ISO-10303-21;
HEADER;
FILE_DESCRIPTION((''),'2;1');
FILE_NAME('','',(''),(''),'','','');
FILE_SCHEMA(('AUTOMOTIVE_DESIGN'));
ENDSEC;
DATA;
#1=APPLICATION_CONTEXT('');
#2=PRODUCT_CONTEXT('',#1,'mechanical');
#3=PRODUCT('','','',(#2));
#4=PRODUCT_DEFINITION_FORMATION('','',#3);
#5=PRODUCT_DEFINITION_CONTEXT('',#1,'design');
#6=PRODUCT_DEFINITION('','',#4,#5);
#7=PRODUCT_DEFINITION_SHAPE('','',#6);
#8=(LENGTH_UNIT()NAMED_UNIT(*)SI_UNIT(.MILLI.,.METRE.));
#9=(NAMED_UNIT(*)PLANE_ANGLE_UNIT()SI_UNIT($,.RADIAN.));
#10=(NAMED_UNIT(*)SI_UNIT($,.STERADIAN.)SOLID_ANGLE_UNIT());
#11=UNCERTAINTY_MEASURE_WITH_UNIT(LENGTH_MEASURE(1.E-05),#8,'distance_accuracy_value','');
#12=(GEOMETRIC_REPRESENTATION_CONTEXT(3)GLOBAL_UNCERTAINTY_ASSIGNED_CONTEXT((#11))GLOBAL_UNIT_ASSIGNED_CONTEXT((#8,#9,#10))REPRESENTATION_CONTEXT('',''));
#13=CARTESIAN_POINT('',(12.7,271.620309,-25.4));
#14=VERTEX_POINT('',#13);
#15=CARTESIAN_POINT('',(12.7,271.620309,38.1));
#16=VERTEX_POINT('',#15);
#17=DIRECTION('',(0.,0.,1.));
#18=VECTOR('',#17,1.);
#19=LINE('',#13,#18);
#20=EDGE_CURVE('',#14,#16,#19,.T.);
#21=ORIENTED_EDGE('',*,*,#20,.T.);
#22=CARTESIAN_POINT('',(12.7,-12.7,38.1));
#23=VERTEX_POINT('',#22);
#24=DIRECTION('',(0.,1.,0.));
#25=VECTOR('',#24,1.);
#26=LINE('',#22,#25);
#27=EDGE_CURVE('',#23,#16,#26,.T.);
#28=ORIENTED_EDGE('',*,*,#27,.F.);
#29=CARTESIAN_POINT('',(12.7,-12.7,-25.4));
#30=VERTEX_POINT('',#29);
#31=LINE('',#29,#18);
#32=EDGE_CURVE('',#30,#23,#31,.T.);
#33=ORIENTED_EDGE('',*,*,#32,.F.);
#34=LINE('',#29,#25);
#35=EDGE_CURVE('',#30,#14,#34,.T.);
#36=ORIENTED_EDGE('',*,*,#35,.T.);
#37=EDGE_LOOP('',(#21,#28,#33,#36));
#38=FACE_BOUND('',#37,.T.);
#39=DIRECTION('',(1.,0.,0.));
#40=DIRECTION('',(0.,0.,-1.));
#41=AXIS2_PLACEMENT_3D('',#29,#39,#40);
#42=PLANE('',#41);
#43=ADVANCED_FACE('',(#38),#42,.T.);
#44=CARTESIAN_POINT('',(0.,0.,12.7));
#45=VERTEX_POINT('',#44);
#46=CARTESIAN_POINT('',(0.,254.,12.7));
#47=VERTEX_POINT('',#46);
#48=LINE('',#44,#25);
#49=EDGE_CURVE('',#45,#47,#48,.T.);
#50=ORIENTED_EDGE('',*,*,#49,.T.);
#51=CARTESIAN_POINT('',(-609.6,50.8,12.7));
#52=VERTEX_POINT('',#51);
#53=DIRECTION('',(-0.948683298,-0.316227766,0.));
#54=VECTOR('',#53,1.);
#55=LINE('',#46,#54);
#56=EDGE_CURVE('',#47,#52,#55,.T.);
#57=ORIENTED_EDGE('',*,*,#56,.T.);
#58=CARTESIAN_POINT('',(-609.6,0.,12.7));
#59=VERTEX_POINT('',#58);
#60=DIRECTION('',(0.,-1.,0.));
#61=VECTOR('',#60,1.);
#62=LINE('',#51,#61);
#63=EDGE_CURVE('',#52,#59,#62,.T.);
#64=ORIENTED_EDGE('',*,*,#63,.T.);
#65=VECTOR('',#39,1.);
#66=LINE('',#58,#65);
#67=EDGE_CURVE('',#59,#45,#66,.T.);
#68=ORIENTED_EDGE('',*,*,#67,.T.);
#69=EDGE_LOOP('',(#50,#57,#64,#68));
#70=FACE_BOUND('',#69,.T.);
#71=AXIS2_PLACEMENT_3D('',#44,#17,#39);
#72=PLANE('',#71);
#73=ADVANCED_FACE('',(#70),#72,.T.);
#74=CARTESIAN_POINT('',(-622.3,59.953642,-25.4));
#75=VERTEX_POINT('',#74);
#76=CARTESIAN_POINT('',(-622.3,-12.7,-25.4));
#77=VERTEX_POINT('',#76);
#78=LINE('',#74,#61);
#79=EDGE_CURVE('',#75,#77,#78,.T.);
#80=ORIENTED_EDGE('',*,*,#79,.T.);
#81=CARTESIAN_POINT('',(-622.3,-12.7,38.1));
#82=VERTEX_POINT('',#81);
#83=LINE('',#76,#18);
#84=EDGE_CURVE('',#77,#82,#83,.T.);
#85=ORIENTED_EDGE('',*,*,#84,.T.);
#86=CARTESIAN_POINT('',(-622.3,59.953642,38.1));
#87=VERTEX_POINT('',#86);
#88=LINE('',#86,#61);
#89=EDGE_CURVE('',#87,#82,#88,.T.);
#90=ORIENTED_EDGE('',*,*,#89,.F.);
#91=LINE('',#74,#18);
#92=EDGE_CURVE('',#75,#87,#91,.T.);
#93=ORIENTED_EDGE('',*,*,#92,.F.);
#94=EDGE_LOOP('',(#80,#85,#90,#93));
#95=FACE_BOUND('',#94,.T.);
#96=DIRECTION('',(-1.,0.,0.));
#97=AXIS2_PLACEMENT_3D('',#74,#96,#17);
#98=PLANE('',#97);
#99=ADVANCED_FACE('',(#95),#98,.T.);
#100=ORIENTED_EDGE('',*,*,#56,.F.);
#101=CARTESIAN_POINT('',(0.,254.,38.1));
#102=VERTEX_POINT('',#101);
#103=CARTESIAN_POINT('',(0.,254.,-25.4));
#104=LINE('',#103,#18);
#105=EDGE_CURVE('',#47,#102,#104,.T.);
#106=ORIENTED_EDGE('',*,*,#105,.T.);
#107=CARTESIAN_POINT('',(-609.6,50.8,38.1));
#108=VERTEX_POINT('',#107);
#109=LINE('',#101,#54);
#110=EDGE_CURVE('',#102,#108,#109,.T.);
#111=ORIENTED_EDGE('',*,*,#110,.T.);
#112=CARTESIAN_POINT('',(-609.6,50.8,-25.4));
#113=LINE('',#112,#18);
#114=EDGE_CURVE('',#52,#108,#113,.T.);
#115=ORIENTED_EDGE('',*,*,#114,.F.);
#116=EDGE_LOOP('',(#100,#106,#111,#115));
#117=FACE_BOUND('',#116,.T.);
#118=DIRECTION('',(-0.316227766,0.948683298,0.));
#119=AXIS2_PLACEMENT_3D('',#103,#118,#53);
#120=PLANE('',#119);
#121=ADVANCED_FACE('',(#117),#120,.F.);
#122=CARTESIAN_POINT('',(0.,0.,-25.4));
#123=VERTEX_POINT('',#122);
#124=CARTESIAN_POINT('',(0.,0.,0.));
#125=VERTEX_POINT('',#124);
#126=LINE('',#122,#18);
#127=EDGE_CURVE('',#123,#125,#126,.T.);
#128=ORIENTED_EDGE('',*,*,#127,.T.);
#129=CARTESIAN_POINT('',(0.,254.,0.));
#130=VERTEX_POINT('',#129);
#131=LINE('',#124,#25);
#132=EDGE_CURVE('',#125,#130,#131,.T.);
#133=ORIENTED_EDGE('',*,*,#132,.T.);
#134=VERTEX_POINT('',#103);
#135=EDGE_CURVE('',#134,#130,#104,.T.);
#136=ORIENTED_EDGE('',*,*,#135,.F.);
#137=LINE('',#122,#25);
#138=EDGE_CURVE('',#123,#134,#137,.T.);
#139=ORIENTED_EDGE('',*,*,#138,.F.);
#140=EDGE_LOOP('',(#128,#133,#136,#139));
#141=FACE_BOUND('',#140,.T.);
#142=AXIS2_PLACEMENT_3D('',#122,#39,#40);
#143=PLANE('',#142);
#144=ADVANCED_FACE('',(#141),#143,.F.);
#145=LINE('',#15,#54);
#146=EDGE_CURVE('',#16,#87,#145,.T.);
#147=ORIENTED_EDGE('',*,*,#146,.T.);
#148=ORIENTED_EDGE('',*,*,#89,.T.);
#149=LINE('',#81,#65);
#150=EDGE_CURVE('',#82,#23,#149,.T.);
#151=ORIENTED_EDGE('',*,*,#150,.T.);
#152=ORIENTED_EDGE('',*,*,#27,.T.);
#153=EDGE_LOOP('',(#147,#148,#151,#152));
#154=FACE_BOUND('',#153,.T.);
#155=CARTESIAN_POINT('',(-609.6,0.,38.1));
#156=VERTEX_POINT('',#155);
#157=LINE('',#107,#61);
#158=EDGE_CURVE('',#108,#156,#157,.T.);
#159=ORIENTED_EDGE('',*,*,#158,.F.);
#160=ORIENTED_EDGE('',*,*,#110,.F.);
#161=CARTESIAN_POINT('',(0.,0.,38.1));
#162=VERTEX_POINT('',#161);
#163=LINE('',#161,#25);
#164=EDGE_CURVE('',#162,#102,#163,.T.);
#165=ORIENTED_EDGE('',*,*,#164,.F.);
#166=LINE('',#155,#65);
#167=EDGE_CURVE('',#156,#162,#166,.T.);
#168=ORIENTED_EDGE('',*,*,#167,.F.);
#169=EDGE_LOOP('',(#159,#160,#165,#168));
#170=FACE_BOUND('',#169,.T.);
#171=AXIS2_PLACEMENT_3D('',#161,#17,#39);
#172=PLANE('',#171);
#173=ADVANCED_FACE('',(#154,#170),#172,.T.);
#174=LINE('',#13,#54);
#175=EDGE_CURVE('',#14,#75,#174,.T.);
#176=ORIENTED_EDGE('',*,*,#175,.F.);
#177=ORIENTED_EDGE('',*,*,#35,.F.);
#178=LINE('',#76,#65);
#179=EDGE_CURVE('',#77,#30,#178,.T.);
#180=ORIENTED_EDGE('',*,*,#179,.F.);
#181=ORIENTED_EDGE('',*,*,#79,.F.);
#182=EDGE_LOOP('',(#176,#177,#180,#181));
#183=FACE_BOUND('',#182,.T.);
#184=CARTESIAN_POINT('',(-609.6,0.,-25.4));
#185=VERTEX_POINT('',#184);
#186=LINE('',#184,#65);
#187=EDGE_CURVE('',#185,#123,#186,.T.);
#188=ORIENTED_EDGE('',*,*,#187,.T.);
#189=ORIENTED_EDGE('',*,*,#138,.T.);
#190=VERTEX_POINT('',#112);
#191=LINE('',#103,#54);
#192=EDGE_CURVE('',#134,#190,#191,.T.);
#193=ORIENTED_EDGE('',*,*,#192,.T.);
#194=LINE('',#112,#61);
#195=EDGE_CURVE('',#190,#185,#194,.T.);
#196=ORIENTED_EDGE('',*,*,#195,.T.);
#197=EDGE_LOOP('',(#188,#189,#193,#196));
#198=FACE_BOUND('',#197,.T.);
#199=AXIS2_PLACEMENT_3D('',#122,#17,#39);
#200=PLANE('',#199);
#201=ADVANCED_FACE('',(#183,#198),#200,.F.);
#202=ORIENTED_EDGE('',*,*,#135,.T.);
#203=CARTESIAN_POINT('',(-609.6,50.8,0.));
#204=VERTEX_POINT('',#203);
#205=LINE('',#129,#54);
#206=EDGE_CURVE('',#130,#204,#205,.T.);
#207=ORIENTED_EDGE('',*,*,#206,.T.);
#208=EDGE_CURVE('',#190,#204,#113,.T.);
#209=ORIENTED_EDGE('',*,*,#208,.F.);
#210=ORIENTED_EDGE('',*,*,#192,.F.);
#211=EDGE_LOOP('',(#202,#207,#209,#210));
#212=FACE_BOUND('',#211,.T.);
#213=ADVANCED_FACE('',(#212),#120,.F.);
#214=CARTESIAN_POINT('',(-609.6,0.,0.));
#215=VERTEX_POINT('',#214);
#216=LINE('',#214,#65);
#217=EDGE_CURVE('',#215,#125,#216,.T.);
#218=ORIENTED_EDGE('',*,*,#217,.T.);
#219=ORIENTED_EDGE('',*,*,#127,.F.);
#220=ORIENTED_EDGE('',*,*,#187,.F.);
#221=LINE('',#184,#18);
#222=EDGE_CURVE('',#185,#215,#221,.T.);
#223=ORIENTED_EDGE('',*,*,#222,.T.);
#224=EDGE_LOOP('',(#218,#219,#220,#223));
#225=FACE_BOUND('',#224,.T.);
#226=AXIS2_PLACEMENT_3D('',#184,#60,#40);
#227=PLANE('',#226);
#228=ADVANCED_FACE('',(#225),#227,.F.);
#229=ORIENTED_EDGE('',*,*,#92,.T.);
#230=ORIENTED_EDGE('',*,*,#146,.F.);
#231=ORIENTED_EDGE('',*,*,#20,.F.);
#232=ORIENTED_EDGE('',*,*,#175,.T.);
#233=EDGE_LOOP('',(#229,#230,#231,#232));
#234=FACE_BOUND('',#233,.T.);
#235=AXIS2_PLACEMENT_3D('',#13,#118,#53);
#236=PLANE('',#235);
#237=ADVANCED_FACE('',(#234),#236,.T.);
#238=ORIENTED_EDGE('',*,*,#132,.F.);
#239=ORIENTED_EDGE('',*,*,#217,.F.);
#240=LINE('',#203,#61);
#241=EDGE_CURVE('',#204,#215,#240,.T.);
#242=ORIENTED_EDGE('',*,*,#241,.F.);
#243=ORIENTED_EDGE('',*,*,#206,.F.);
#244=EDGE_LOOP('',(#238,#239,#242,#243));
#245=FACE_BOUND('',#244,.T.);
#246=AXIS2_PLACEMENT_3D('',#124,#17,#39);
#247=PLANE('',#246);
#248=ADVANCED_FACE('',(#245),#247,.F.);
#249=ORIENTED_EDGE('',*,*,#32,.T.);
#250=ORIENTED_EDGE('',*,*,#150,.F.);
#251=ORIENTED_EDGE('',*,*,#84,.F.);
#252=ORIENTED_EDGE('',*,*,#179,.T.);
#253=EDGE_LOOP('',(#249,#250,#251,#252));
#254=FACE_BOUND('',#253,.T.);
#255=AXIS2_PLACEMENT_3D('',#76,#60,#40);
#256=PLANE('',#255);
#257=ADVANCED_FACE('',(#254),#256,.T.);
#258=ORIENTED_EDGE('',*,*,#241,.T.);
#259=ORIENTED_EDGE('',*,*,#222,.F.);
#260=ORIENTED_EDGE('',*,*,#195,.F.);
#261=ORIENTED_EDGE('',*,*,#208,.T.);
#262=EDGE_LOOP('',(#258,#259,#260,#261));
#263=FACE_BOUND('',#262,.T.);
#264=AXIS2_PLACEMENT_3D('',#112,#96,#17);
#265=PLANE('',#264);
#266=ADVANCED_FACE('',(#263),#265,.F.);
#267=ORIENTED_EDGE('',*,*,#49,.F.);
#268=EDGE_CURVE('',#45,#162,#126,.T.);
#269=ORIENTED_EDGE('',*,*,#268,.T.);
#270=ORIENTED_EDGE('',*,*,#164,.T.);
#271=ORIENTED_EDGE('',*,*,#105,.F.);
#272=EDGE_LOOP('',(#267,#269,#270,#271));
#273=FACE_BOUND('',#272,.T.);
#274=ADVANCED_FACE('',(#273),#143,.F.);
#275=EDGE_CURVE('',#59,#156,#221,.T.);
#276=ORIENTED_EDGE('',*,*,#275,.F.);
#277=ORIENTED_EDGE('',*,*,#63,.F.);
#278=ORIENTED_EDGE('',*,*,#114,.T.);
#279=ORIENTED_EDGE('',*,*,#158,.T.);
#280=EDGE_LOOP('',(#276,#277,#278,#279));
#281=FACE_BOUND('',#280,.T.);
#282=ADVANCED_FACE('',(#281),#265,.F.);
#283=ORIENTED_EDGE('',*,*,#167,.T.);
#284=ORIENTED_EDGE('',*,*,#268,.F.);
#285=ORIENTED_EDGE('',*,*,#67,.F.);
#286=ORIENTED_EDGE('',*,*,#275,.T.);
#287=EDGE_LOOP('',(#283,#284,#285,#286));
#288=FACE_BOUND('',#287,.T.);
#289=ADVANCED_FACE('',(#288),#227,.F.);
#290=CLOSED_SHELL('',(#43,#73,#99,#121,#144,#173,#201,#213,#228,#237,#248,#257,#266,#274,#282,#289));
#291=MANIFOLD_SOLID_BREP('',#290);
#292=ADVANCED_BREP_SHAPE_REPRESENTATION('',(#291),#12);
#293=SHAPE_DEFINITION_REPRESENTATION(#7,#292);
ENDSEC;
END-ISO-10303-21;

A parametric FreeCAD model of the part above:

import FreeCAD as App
import Part
import Sketcher
Q = App.Units.Quantity

doc = App.newDocument("Part")
body = doc.addObject("PartDesign::Body", "Body")

sketch1 = body.newObject("Sketcher::SketchObject", "Sketch")
sketch1.AttachmentSupport = (doc.getObject("XY_Plane"), [""])
sketch1.MapMode = "FlatFace"
sketch1.addGeometry(Part.LineSegment(App.Vector(0, 0, 0), App.Vector(0, 254, 0)), False)
sketch1.addGeometry(Part.LineSegment(App.Vector(0, 254, 0), App.Vector(-609.6, 50.8, 0)), False)
sketch1.addGeometry(Part.LineSegment(App.Vector(-609.6, 50.8, 0), App.Vector(-609.6, 0, 0)), False)
sketch1.addGeometry(Part.LineSegment(App.Vector(-609.6, 0, 0), App.Vector(0, 0, 0)), False)
sketch1.addConstraint(Sketcher.Constraint("Coincident", 0, 2, 1, 1))
sketch1.addConstraint(Sketcher.Constraint("Coincident", 1, 2, 2, 1))
sketch1.addConstraint(Sketcher.Constraint("Coincident", 2, 2, 3, 1))
sketch1.addConstraint(Sketcher.Constraint("Coincident", 3, 2, 0, 1))
sketch1.addConstraint(Sketcher.Constraint("Vertical", 0))
sketch1.addConstraint(Sketcher.Constraint("Vertical", 2))
sketch1.addConstraint(Sketcher.Constraint("Horizontal", 3))
sketch1.addConstraint(Sketcher.Constraint("Coincident", 3, 2, -1, 1))
sketch1.addConstraint(Sketcher.Constraint("DistanceX", 3, 1, 3, 2, Q("24 in")))
sketch1.addConstraint(Sketcher.Constraint("DistanceY", 0, 1, 0, 2, Q("10 in")))
sketch1.addConstraint(Sketcher.Constraint("DistanceY", 2, 2, 2, 1, Q("2 in")))
pad1 = body.newObject("PartDesign::Pad", "Pad")
pad1.Profile = sketch1
pad1.Length = Q("0.5 in")

sketch2 = body.newObject("Sketcher::SketchObject", "Sketch001")
sketch2.AttachmentSupport = (doc.getObject("XY_Plane"), [""])
sketch2.MapMode = "FlatFace"
sketch2.AttachmentOffset = App.Placement(App.Vector(0, 0, 0.5 * 25.4), App.Rotation())
sketch2.addGeometry(Part.LineSegment(App.Vector(12.7, -12.7, 0), App.Vector(12.7, 271.620309, 0)), False)
sketch2.addGeometry(Part.LineSegment(App.Vector(12.7, 271.620309, 0), App.Vector(-622.3, 59.953642, 0)), False)
sketch2.addGeometry(Part.LineSegment(App.Vector(-622.3, 59.953642, 0), App.Vector(-622.3, -12.7, 0)), False)
sketch2.addGeometry(Part.LineSegment(App.Vector(-622.3, -12.7, 0), App.Vector(12.7, -12.7, 0)), False)
sketch2.addGeometry(Part.LineSegment(App.Vector(-609.6, 50.8, 0), App.Vector(0, 254, 0)), False)
sketch2.addGeometry(Part.LineSegment(App.Vector(0, 254, 0), App.Vector(0, 0, 0)), False)
sketch2.addGeometry(Part.LineSegment(App.Vector(0, 0, 0), App.Vector(-609.6, 0, 0)), False)
sketch2.addGeometry(Part.LineSegment(App.Vector(-609.6, 0, 0), App.Vector(-609.6, 50.8, 0)), False)
sketch2.addConstraint(Sketcher.Constraint("Coincident", 0, 2, 1, 1))
sketch2.addConstraint(Sketcher.Constraint("Coincident", 1, 2, 2, 1))
sketch2.addConstraint(Sketcher.Constraint("Coincident", 2, 2, 3, 1))
sketch2.addConstraint(Sketcher.Constraint("Coincident", 3, 2, 0, 1))
sketch2.addConstraint(Sketcher.Constraint("Coincident", 4, 2, 5, 1))
sketch2.addConstraint(Sketcher.Constraint("Coincident", 5, 2, 6, 1))
sketch2.addConstraint(Sketcher.Constraint("Coincident", 6, 2, 7, 1))
sketch2.addConstraint(Sketcher.Constraint("Coincident", 7, 2, 4, 1))
sketch2.addConstraint(Sketcher.Constraint("Vertical", 0))
sketch2.addConstraint(Sketcher.Constraint("Vertical", 2))
sketch2.addConstraint(Sketcher.Constraint("Horizontal", 3))
sketch2.addConstraint(Sketcher.Constraint("Vertical", 5))
sketch2.addConstraint(Sketcher.Constraint("Horizontal", 6))
sketch2.addConstraint(Sketcher.Constraint("Vertical", 7))
sketch2.addConstraint(Sketcher.Constraint("Coincident", 5, 2, -1, 1))
sketch2.addConstraint(Sketcher.Constraint("Parallel", 1, 4))
sketch2.addConstraint(Sketcher.Constraint("DistanceX", 3, 1, 3, 2, Q("25 in")))
sketch2.addConstraint(Sketcher.Constraint("DistanceX", 6, 2, 6, 1, Q("24 in")))
sketch2.addConstraint(Sketcher.Constraint("DistanceY", 5, 2, 5, 1, Q("10 in")))
sketch2.addConstraint(Sketcher.Constraint("DistanceY", 7, 1, 7, 2, Q("2 in")))
sketch2.addConstraint(Sketcher.Constraint("DistanceX", -1, 1, 0, 2, Q("0.5 in")))
sketch2.addConstraint(Sketcher.Constraint("DistanceY", 2, 2, -1, 1, Q("0.5 in")))
sketch2.addConstraint(Sketcher.Constraint("DistanceY", 0, 1, 0, 2, 284.320309))
pad2 = body.newObject("PartDesign::Pad", "Pad001")
pad2.Profile = sketch2
pad2.Type = "TwoLengths"
pad2.Length = Q("1 in")
pad2.Length2 = Q("1.5 in")

doc.recompute()
